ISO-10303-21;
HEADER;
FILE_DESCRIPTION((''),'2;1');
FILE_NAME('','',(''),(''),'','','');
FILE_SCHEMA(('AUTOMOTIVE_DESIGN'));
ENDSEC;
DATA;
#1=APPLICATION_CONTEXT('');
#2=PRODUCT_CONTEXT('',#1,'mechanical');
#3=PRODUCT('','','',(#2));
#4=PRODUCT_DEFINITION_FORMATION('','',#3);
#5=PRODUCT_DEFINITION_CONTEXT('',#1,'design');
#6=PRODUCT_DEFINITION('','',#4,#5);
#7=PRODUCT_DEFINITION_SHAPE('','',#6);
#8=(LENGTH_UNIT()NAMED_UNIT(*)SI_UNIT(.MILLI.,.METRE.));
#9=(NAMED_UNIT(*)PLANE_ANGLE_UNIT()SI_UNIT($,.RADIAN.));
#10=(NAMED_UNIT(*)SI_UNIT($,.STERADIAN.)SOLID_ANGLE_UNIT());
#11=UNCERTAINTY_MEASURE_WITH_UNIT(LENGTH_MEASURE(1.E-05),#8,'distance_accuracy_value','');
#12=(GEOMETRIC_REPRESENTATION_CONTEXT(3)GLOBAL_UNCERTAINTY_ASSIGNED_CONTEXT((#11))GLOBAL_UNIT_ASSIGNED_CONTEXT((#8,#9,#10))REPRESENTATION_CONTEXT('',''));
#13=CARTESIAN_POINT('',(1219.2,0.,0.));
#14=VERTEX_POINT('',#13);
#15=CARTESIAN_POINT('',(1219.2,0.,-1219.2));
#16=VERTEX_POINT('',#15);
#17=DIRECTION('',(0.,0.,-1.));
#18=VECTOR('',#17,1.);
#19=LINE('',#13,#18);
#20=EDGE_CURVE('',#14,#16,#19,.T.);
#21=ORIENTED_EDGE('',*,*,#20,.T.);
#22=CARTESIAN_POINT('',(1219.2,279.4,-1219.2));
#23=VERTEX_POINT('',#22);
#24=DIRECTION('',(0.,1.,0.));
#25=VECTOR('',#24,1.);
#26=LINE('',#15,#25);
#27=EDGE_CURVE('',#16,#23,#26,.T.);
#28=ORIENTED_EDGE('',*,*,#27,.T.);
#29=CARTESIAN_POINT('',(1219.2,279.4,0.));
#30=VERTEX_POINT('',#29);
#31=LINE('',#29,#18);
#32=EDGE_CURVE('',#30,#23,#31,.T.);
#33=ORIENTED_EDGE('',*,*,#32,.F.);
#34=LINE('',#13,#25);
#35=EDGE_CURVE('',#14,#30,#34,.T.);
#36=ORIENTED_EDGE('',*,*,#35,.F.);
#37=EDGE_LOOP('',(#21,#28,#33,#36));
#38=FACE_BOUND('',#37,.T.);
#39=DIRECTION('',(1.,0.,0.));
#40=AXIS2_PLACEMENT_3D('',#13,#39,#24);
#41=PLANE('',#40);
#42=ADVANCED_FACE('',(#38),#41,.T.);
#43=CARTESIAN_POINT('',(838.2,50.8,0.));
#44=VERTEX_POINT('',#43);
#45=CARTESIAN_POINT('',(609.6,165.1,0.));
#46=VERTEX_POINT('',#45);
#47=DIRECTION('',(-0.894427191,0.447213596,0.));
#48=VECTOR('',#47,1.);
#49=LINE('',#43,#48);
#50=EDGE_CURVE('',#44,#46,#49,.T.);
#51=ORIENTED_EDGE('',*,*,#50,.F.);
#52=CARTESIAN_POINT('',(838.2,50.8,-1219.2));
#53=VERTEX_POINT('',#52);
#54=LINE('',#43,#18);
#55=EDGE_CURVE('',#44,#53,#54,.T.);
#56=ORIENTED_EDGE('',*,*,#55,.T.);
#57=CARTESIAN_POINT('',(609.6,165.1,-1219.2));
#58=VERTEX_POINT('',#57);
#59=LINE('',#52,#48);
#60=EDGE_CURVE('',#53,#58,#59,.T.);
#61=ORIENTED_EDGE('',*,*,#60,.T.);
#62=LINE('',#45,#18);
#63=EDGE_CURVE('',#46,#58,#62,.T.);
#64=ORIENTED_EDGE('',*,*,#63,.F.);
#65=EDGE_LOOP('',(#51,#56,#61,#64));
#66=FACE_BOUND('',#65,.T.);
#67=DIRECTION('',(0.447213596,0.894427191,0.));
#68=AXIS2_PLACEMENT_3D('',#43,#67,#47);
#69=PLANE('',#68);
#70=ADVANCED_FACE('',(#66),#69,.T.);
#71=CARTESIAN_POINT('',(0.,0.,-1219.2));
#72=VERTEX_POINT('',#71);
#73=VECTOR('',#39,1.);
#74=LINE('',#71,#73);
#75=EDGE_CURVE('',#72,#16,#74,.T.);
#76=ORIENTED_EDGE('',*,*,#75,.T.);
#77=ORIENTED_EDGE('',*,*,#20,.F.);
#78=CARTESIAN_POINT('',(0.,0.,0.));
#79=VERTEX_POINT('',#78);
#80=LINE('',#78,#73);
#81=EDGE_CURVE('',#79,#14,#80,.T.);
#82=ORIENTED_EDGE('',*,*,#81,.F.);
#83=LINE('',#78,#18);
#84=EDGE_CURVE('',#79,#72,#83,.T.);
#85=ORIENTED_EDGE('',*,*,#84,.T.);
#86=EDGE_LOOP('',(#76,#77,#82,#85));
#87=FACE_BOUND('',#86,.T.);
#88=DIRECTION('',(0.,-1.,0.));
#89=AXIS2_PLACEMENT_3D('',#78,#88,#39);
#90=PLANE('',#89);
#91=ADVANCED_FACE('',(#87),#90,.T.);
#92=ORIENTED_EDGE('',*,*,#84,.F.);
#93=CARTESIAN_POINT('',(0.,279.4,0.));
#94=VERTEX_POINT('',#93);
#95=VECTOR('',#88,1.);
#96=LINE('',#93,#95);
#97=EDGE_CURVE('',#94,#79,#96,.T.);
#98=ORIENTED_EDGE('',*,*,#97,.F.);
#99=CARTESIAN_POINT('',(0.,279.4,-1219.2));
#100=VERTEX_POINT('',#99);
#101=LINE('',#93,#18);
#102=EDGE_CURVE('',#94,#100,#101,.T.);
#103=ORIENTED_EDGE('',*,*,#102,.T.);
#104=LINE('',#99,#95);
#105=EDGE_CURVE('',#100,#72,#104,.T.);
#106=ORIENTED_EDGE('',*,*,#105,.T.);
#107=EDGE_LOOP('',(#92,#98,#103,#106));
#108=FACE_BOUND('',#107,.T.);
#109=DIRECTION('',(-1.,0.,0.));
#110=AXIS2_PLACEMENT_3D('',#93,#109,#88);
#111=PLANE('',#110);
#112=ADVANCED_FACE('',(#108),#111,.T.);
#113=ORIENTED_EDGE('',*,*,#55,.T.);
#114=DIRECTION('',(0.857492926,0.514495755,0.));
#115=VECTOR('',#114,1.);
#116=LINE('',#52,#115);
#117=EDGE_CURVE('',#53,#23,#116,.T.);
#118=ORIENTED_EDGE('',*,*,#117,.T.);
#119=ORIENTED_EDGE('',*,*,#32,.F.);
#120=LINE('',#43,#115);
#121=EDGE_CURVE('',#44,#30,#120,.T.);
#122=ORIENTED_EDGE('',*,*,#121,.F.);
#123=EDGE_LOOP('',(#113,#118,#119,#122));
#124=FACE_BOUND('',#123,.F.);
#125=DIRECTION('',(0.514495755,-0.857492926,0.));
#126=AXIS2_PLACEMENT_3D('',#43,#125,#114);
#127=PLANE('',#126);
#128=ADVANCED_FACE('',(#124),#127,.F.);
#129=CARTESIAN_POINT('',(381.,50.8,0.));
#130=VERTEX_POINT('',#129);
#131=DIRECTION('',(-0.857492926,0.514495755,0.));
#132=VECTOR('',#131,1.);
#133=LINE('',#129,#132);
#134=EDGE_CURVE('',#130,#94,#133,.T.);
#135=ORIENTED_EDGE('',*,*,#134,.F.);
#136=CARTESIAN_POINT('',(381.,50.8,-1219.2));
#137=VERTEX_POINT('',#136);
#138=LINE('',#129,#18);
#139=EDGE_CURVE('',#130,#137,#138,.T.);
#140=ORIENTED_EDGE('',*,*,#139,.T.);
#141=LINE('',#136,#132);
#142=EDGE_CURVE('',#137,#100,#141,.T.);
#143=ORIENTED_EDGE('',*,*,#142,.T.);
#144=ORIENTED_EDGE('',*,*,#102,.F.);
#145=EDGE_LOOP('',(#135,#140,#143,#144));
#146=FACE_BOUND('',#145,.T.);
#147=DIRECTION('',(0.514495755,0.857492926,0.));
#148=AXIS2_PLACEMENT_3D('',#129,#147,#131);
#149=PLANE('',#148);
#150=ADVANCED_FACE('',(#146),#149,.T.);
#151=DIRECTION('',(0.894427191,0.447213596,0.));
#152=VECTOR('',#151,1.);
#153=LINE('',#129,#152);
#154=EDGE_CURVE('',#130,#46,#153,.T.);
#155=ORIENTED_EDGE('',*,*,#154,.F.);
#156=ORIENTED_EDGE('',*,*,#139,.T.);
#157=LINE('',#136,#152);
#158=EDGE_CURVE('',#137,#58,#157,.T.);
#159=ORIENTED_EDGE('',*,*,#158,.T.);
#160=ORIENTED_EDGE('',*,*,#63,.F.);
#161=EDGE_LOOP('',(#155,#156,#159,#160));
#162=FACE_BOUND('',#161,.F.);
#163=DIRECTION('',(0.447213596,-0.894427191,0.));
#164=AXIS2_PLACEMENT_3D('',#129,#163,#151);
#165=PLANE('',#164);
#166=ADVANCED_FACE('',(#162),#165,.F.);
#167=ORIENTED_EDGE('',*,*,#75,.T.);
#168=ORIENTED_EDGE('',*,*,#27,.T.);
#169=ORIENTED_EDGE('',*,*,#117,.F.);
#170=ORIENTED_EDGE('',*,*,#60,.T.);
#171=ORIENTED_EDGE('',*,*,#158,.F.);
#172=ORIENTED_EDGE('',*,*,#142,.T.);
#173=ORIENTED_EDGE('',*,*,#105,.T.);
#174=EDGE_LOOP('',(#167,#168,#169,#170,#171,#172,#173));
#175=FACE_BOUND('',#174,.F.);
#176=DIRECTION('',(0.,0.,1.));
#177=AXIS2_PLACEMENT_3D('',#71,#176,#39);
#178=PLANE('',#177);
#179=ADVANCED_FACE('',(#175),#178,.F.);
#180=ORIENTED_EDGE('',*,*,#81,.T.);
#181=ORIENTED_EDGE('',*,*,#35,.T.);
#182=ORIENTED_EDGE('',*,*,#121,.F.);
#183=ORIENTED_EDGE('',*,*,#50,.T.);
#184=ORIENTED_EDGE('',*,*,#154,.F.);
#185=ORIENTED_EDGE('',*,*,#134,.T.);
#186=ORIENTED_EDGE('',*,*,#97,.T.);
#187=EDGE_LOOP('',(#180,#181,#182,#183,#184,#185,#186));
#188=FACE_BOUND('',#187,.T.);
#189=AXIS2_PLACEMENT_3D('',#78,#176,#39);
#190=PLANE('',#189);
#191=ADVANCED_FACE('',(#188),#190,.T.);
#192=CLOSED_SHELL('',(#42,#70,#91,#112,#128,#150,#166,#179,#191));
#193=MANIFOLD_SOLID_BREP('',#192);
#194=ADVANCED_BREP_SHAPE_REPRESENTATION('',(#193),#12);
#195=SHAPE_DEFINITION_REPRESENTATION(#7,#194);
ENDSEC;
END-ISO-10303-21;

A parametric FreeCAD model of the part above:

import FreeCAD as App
import Part
import Sketcher
from FreeCAD import Vector
Q = App.Units.Quantity

doc = App.newDocument("Part")
body = doc.addObject("PartDesign::Body", "Body")

sketch1 = body.newObject("Sketcher::SketchObject", "Sketch")
sketch1.AttachmentSupport = (doc.getObject("XY_Plane"), [""])
sketch1.MapMode = "FlatFace"
sketch1.addGeometry([
    Part.LineSegment(Vector(0, 279.4, 0), Vector(0, 0, 0)),
    Part.LineSegment(Vector(0, 0, 0), Vector(1219.2, 0, 0)),
    Part.LineSegment(Vector(1219.2, 0, 0), Vector(1219.2, 279.4, 0)),
    Part.LineSegment(Vector(1219.2, 279.4, 0), Vector(838.2, 50.8, 0)),
    Part.LineSegment(Vector(838.2, 50.8, 0), Vector(609.6, 165.1, 0)),
    Part.LineSegment(Vector(609.6, 165.1, 0), Vector(381, 50.8, 0)),
    Part.LineSegment(Vector(381, 50.8, 0), Vector(0, 279.4, 0)),
], False)
sketch1.addConstraint([
    Sketcher.Constraint("Coincident", 0, 2, 1, 1),
    Sketcher.Constraint("Coincident", 1, 2, 2, 1),
    Sketcher.Constraint("Coincident", 2, 2, 3, 1),
    Sketcher.Constraint("Coincident", 3, 2, 4, 1),
    Sketcher.Constraint("Coincident", 4, 2, 5, 1),
    Sketcher.Constraint("Coincident", 5, 2, 6, 1),
    Sketcher.Constraint("Coincident", 6, 2, 0, 1),
    Sketcher.Constraint("Vertical", 0),
    Sketcher.Constraint("Horizontal", 1),
    Sketcher.Constraint("Vertical", 2),
    Sketcher.Constraint("Coincident", 0, 2, -1, 1),
    Sketcher.Constraint("Horizontal", 3, 2, 5, 2),
    Sketcher.Constraint("Horizontal", 2, 2, 6, 2),
    Sketcher.Constraint("Equal", 4, 5),
    Sketcher.Constraint("Equal", 3, 6),
    Sketcher.Constraint("DistanceX", 1, 1, 1, 2, Q("48 in")),
    Sketcher.Constraint("DistanceY", 0, 2, 0, 1, Q("11 in")),
    Sketcher.Constraint("DistanceY", -1, 1, 3, 2, Q("2 in")),
    Sketcher.Constraint("DistanceX", -1, 1, 5, 2, Q("15 in")),
    Sketcher.Constraint("DistanceY", -1, 1, 4, 2, Q("6.5 in")),
])
pad1 = body.newObject("PartDesign::Pad", "Pad")
pad1.Profile = sketch1
pad1.Length = Q("48 in")
pad1.Reversed = True

doc.recompute()
